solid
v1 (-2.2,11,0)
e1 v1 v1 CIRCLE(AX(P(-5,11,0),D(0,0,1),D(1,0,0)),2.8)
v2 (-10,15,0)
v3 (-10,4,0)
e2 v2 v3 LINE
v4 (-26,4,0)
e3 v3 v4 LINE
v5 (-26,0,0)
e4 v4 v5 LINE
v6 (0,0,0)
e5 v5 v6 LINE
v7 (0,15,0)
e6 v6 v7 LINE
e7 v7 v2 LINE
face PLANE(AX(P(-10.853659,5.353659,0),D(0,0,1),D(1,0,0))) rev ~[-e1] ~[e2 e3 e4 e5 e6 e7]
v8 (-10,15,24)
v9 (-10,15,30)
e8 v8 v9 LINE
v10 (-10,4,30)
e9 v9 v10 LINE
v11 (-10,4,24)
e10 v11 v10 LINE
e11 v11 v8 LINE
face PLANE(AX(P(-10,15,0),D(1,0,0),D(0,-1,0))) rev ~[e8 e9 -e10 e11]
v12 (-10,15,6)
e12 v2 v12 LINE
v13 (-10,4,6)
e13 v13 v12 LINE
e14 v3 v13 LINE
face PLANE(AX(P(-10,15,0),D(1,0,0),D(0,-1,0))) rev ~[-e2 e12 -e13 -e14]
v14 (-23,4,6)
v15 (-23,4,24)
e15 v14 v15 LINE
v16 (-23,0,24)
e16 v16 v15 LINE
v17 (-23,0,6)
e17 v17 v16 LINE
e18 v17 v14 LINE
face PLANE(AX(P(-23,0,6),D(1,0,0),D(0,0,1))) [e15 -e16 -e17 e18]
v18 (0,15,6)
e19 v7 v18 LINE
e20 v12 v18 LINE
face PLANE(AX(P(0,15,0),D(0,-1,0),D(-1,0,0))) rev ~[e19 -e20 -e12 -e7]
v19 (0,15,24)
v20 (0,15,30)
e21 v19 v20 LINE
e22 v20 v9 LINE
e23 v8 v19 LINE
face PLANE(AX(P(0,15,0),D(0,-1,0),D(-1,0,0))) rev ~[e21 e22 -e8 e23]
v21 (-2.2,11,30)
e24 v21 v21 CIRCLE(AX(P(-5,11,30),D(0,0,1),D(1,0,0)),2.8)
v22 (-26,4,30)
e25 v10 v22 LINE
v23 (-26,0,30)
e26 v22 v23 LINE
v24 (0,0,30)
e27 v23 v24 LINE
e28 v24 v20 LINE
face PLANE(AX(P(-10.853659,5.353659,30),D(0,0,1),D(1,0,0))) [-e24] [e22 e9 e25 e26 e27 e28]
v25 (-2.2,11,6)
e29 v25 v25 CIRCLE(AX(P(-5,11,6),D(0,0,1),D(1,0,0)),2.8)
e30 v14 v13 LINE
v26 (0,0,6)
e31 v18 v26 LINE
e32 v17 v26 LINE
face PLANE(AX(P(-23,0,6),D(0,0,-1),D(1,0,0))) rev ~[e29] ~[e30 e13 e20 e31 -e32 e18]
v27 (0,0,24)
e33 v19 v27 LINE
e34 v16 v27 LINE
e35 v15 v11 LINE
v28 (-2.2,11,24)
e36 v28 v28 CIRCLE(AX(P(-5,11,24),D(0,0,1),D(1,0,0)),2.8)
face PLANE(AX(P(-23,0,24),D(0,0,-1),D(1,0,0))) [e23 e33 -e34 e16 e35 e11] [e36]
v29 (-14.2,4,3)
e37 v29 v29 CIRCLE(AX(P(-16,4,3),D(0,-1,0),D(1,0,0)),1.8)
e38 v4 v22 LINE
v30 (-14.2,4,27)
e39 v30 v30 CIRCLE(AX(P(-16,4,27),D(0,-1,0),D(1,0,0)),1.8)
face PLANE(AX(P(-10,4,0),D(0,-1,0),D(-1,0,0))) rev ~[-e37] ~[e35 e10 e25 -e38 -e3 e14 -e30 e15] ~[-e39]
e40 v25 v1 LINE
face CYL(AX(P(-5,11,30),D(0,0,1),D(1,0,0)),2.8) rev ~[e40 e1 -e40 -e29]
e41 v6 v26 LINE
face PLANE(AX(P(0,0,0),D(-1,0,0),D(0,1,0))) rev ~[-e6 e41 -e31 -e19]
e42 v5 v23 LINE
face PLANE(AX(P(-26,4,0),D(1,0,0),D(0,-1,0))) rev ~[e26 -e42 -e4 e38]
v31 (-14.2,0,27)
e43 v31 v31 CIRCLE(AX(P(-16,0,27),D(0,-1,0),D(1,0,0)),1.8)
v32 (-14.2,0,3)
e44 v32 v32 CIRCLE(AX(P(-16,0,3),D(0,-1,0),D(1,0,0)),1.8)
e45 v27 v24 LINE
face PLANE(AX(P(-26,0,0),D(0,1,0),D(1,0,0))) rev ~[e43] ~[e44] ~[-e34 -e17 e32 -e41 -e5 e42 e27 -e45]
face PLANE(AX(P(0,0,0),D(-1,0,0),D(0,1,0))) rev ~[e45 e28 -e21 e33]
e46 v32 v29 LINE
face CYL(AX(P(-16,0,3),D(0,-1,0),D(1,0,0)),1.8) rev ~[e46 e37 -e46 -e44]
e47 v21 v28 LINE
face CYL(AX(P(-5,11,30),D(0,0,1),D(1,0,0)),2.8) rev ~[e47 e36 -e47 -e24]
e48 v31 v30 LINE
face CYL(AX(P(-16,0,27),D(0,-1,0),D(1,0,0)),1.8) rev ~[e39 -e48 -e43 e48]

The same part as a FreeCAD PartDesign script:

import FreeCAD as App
import Part
import Sketcher
Q = App.Units.Quantity

doc = App.newDocument("Part")
body = doc.addObject("PartDesign::Body", "Body")

sketch1 = body.newObject("Sketcher::SketchObject", "Sketch")
sketch1.AttachmentSupport = (doc.getObject("XY_Plane"), [""])
sketch1.MapMode = "FlatFace"
sketch1.addGeometry(Part.LineSegment(App.Vector(-10, 4, 0), App.Vector(-26, 4, 0)), False)
sketch1.addGeometry(Part.LineSegment(App.Vector(-26, 4, 0), App.Vector(-26, 0, 0)), False)
sketch1.addGeometry(Part.LineSegment(App.Vector(-26, 0, 0), App.Vector(0, 0, 0)), False)
sketch1.addGeometry(Part.LineSegment(App.Vector(0, 0, 0), App.Vector(0, 15, 0)), False)
sketch1.addGeometry(Part.LineSegment(App.Vector(0, 15, 0), App.Vector(-10, 15, 0)), False)
sketch1.addGeometry(Part.LineSegment(App.Vector(-10, 15, 0), App.Vector(-10, 4, 0)), False)
sketch1.addConstraint(Sketcher.Constraint("Coincident", 0, 2, 1, 1))
sketch1.addConstraint(Sketcher.Constraint("Coincident", 1, 2, 2, 1))
sketch1.addConstraint(Sketcher.Constraint("Coincident", 2, 2, 3, 1))
sketch1.addConstraint(Sketcher.Constraint("Coincident", 3, 2, 4, 1))
sketch1.addConstraint(Sketcher.Constraint("Coincident", 4, 2, 5, 1))
sketch1.addConstraint(Sketcher.Constraint("Coincident", 5, 2, 0, 1))
sketch1.addConstraint(Sketcher.Constraint("Horizontal", 0))
sketch1.addConstraint(Sketcher.Constraint("Vertical", 1))
sketch1.addConstraint(Sketcher.Constraint("Horizontal", 2))
sketch1.addConstraint(Sketcher.Constraint("Vertical", 3))
sketch1.addConstraint(Sketcher.Constraint("Horizontal", 4))
sketch1.addConstraint(Sketcher.Constraint("Vertical", 5))
sketch1.addConstraint(Sketcher.Constraint("Coincident", 2, 2, -1, 1))
sketch1.addConstraint(Sketcher.Constraint("DistanceX", 0, 2, 0, 1, Q("16 mm")))
sketch1.addConstraint(Sketcher.Constraint("DistanceX", 2, 1, 2, 2, Q("26 mm")))
sketch1.addConstraint(Sketcher.Constraint("DistanceY", 1, 2, 1, 1, Q("4 mm")))
sketch1.addConstraint(Sketcher.Constraint("DistanceY", 3, 1, 3, 2, Q("15 mm")))
pad1 = body.newObject("PartDesign::Pad", "Pad")
pad1.Profile = sketch1
pad1.Length = 30

sketch2 = body.newObject("Sketcher::SketchObject", "Sketch001")
sketch2.AttachmentSupport = (doc.getObject("XZ_Plane"), [""])
sketch2.MapMode = "FlatFace"
sketch2.addGeometry(Part.Circle(App.Vector(-16, 27, 0), App.Vector(0, 0, 1), 1.8), False)
sketch2.addGeometry(Part.Circle(App.Vector(-16, 3, 0), App.Vector(0, 0, 1), 1.8), False)
sketch2.addGeometry(Part.LineSegment(App.Vector(-23, 24, 0), App.Vector(-23, 6, 0)), False)
sketch2.addGeometry(Part.LineSegment(App.Vector(-23, 6, 0), App.Vector(6.2, 6, 0)), False)
sketch2.addGeometry(Part.LineSegment(App.Vector(6.2, 6, 0), App.Vector(6.2, 24, 0)), False)
sketch2.addGeometry(Part.LineSegment(App.Vector(6.2, 24, 0), App.Vector(-23, 24, 0)), False)
sketch2.addConstraint(Sketcher.Constraint("Coincident", 2, 2, 3, 1))
sketch2.addConstraint(Sketcher.Constraint("Coincident", 3, 2, 4, 1))
sketch2.addConstraint(Sketcher.Constraint("Coincident", 4, 2, 5, 1))
sketch2.addConstraint(Sketcher.Constraint("Coincident", 5, 2, 2, 1))
sketch2.addConstraint(Sketcher.Constraint("Vertical", 2))
sketch2.addConstraint(Sketcher.Constraint("Horizontal", 3))
sketch2.addConstraint(Sketcher.Constraint("Vertical", 4))
sketch2.addConstraint(Sketcher.Constraint("Horizontal", 5))
sketch2.addConstraint(Sketcher.Constraint("Equal", 0, 1))
sketch2.addConstraint(Sketcher.Constraint("Vertical", 0, 3, 1, 3))
sketch2.addConstraint(Sketcher.Constraint("Diameter", 0, Q("3.6 mm")))
sketch2.addConstraint(Sketcher.Constraint("DistanceY", 2, 2, 2, 1, Q("18 mm")))
sketch2.addConstraint(Sketcher.Constraint("DistanceX", 0, 3, -1, 1, Q("16 mm")))
sketch2.addConstraint(Sketcher.Constraint("DistanceY", -1, 1, 0, 3, Q("27 mm")))
sketch2.addConstraint(Sketcher.Constraint("DistanceY", -1, 1, 1, 3, Q("3 mm")))
sketch2.addConstraint(Sketcher.Constraint("DistanceX", 2, 2, -1, 1, Q("23 mm")))
sketch2.addConstraint(Sketcher.Constraint("DistanceY", -1, 1, 2, 2, Q("6 mm")))
sketch2.addConstraint(Sketcher.Constraint("DistanceX", 3, 1, 3, 2, Q("29.168577 mm")))
pocket1 = body.newObject("PartDesign::Pocket", "Pocket")
pocket1.Profile = sketch2
pocket1.Type = "ThroughAll"

sketch3 = body.newObject("Sketcher::SketchObject", "Sketch002")
sketch3.AttachmentSupport = (doc.getObject("XY_Plane"), [""])
sketch3.MapMode = "FlatFace"
sketch3.AttachmentOffset = App.Placement(App.Vector(0, 0, 30), App.Rotation())
sketch3.addGeometry(Part.Circle(App.Vector(-5, 11, 0), App.Vector(0, 0, 1), 2.8), False)
sketch3.addConstraint(Sketcher.Constraint("Diameter", 0, Q("5.6 mm")))
sketch3.addConstraint(Sketcher.Constraint("DistanceX", 0, 3, -1, 1, Q("5 mm")))
sketch3.addConstraint(Sketcher.Constraint("DistanceY", -1, 1, 0, 3, Q("11 mm")))
pocket2 = body.newObject("PartDesign::Pocket", "Pocket001")
pocket2.Profile = sketch3
pocket2.Type = "ThroughAll"

doc.recompute()
